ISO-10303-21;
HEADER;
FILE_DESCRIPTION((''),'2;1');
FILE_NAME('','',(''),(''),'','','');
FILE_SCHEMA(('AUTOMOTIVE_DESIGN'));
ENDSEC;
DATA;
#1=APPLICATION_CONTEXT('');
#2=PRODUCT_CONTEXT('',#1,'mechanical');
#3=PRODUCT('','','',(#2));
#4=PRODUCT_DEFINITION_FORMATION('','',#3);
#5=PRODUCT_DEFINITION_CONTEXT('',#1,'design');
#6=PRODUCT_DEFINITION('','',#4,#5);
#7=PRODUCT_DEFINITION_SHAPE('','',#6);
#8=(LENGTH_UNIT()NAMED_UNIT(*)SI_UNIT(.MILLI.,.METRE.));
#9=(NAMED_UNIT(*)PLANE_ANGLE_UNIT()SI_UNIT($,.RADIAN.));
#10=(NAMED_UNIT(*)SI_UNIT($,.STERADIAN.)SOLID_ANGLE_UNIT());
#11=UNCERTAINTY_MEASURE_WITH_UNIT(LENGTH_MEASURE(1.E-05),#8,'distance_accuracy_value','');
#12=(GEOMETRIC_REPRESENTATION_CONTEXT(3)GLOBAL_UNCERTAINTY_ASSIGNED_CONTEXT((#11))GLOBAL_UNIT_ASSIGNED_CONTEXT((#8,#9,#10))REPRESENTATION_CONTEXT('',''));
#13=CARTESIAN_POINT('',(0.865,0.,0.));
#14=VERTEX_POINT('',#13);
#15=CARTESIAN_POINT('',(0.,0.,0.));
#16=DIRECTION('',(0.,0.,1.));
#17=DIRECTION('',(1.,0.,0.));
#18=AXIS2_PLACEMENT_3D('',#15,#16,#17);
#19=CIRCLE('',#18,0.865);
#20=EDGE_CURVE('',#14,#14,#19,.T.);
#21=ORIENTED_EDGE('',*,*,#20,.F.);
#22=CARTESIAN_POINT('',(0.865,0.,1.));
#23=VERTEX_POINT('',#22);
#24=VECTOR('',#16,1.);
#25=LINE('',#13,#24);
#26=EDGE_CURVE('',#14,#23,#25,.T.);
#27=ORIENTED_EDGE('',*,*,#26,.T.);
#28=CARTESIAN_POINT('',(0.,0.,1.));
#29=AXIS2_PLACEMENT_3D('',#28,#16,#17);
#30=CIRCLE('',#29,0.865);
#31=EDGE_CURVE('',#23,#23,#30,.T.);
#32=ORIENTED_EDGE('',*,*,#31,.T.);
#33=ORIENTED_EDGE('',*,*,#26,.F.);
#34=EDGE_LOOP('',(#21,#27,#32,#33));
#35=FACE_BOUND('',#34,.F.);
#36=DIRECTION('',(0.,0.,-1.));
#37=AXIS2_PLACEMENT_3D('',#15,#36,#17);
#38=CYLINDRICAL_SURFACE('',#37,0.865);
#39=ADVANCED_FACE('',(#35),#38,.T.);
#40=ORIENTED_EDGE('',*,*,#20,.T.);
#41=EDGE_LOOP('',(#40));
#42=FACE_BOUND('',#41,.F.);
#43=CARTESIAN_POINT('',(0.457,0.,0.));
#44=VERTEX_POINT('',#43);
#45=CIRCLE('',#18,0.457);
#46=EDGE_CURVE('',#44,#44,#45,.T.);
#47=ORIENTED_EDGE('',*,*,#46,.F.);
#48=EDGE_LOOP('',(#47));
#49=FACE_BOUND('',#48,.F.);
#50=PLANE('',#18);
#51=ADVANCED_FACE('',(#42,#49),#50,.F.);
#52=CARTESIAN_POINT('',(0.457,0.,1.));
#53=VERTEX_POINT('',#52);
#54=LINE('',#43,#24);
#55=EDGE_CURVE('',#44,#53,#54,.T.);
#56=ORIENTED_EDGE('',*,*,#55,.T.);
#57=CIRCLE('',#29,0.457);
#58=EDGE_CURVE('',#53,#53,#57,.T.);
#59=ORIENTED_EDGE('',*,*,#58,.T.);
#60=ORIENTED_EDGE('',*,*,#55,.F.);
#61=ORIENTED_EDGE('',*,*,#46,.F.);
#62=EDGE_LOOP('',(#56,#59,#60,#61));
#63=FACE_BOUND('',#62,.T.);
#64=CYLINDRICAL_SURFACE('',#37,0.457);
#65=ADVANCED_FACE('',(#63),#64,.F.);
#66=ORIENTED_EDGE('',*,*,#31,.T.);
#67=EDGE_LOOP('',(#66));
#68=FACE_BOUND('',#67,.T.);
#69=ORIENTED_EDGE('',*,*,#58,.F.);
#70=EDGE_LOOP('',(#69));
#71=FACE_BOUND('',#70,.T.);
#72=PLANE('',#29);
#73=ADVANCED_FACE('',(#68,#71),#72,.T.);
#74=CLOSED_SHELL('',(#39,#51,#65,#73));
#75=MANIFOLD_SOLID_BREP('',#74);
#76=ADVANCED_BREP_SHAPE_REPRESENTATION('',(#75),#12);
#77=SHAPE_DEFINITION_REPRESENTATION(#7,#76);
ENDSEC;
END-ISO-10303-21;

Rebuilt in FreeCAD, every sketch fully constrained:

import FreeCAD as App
import Part
import Sketcher
from FreeCAD import Vector
Q = App.Units.Quantity

doc = App.newDocument("Part")
body = doc.addObject("PartDesign::Body", "Body")

sketch1 = body.newObject("Sketcher::SketchObject", "Sketch")
sketch1.AttachmentSupport = (doc.getObject("XY_Plane"), [""])
sketch1.MapMode = "FlatFace"
sketch1.addGeometry(Part.Circle(Vector(0, 0, 0), Vector(0, 0, 1), 0.86), False)
sketch1.addGeometry(Part.Circle(Vector(0, 0, 0), Vector(0, 0, 1), 0.46), False)
sketch1.addConstraint(Sketcher.Constraint("Coincident", 0, 3, -1, 1))
sketch1.addConstraint(Sketcher.Constraint("Coincident", 1, 3, -1, 1))
sketch1.addConstraint(Sketcher.Constraint("Diameter", 0, Q("1.73 mm")))
sketch1.addConstraint(Sketcher.Constraint("Diameter", 1, Q("0.914 mm")))
pad1 = body.newObject("PartDesign::Pad", "Pad")
pad1.Profile = sketch1
pad1.Length = 1

doc.recompute()
